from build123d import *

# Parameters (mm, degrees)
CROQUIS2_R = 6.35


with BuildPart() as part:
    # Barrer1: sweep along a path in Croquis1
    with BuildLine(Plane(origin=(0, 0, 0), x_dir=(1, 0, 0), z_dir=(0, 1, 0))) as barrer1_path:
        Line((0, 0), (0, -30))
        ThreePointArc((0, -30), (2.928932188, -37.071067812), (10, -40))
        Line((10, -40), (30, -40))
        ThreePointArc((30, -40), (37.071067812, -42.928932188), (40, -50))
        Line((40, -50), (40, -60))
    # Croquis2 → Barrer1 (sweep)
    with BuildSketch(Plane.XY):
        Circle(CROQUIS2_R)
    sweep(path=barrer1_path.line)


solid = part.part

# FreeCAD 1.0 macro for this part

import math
import FreeCAD as App
import Part
import Sketcher
from FreeCAD import Vector
Q = App.Units.Quantity

doc = App.newDocument("Part")
params = doc.addObject("Spreadsheet::Sheet", "Params")
for row, (alias, value) in enumerate([
    ("sketch1_diameter", "12.7 mm"),
    ("sketch2_radius", "10 mm"),
    ("sketch2_width", "20 mm"),
    ("sketch2_height", "30 mm"),
    ("sketch2_height2", "10 mm"),
], start=1):
    params.set(f"A{row}", alias)
    params.set(f"B{row}", "=" + value)
    params.setAlias(f"B{row}", alias)

body = doc.addObject("PartDesign::Body", "Body")

# Sketch on XY plane
sketch1 = body.newObject("Sketcher::SketchObject", "Sketch")
sketch1.AttachmentSupport = (doc.getObject("XY_Plane"), [""])
sketch1.MapMode = "FlatFace"
sketch1.addGeometry(Part.Circle(Vector(0, 0, 0), Vector(0, 0, 1), 6), False)
sketch1.addConstraint(Sketcher.Constraint("Coincident", 0, 3, -1, 1))
sketch1.addConstraint(Sketcher.Constraint("Diameter", 0, Q("12.7 mm")))
sketch1.setExpression("Constraints[1]", "Params.sketch1_diameter")

# Sketch on XZ plane
sketch2 = body.newObject("Sketcher::SketchObject", "Sketch001")
sketch2.AttachmentSupport = (doc.getObject("XZ_Plane"), [""])
sketch2.MapMode = "FlatFace"
sketch2.addGeometry(Part.LineSegment(Vector(0, 0, 0), Vector(0, 30, 0)), False)
sketch2.addGeometry(Part.ArcOfCircle(Part.Circle(Vector(10, 30, 0), Vector(0, 0, 1), 10), math.radians(90), math.radians(180)), False)
sketch2.addGeometry(Part.LineSegment(Vector(10, 40, 0), Vector(30, 40, 0)), False)
sketch2.addGeometry(Part.ArcOfCircle(Part.Circle(Vector(30, 50, 0), Vector(0, 0, 1), 10), math.radians(-90), math.radians(0)), False)
sketch2.addGeometry(Part.LineSegment(Vector(40, 50, 0), Vector(40, 60, 0)), False)
sketch2.addConstraint(Sketcher.Constraint("Tangent", 0, 2, 1, 2))
sketch2.addConstraint(Sketcher.Constraint("Tangent", 1, 1, 2, 1))
sketch2.addConstraint(Sketcher.Constraint("Tangent", 2, 2, 3, 1))
sketch2.addConstraint(Sketcher.Constraint("Tangent", 3, 2, 4, 1))
sketch2.addConstraint(Sketcher.Constraint("Vertical", 0))
sketch2.addConstraint(Sketcher.Constraint("Horizontal", 2))
sketch2.addConstraint(Sketcher.Constraint("Vertical", 4))
sketch2.addConstraint(Sketcher.Constraint("Coincident", 0, 1, -1, 1))
sketch2.addConstraint(Sketcher.Constraint("Equal", 1, 3))
sketch2.addConstraint(Sketcher.Constraint("Radius", 1, Q("10 mm")))
sketch2.addConstraint(Sketcher.Constraint("DistanceX", 2, 1, 2, 2, Q("20 mm")))
sketch2.addConstraint(Sketcher.Constraint("DistanceY", 0, 1, 0, 2, Q("30 mm")))
sketch2.addConstraint(Sketcher.Constraint("DistanceY", 4, 1, 4, 2, Q("10 mm")))
sketch2.setExpression("Constraints[9]", "Params.sketch2_radius")
sketch2.setExpression("Constraints[10]", "Params.sketch2_width")
sketch2.setExpression("Constraints[11]", "Params.sketch2_height")
sketch2.setExpression("Constraints[12]", "Params.sketch2_height2")
doc.recompute()

additivepipe = body.newObject("PartDesign::AdditivePipe", "AdditivePipe")
additivepipe.Profile = sketch1
additivepipe.Spine = (sketch2, ["Edge1", "Edge2", "Edge3", "Edge4", "Edge5"])

doc.recompute()
